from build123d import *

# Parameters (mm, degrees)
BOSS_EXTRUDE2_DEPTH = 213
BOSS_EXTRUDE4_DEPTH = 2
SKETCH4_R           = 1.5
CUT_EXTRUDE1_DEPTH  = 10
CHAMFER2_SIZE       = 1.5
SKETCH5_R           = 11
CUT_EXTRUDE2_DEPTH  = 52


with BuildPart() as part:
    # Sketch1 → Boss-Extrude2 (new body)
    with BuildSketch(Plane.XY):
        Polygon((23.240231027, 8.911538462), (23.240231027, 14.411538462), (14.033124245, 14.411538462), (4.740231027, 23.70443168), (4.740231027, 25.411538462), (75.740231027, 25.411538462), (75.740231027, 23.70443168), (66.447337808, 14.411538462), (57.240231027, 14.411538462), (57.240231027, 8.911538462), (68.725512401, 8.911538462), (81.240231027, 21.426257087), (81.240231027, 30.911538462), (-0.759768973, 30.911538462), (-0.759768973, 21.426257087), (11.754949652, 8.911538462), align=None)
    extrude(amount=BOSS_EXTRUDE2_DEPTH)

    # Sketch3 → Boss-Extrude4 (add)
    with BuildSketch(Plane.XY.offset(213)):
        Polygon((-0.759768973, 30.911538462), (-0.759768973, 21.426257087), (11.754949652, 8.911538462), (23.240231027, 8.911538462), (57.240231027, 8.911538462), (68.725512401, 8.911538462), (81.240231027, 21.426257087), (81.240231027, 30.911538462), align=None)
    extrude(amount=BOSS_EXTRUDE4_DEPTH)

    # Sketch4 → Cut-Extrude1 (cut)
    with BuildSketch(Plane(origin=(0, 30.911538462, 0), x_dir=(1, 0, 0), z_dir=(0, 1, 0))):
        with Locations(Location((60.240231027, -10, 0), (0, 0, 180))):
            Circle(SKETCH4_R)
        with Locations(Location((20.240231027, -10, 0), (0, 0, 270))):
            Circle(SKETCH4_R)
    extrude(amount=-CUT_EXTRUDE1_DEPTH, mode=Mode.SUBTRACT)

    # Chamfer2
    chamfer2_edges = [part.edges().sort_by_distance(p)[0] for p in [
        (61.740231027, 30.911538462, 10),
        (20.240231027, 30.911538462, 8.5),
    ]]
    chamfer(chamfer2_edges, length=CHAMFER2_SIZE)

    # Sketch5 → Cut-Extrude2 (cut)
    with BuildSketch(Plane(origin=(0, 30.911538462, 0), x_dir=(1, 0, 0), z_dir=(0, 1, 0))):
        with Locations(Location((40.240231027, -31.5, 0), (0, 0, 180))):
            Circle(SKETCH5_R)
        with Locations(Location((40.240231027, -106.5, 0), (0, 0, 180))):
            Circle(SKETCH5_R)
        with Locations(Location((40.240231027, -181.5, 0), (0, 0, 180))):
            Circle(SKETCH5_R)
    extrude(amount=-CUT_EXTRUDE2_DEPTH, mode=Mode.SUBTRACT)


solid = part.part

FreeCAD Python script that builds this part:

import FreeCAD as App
import Part
import Sketcher

V = App.Vector


def edges_at(feature, points):
    """Names of the edges that pass closest to the given points."""
    edges = feature.Shape.Edges
    near = lambda p: min(range(len(edges)), key=lambda i: edges[i].distToShape(Part.Vertex(*p))[0])
    return sorted({f"Edge{near(p) + 1}" for p in points})

doc = App.newDocument("Part")
body = doc.addObject("PartDesign::Body", "Body")

# Sketch on XY plane
sketch1 = body.newObject("Sketcher::SketchObject", "Sketch")
sketch1.AttachmentSupport = (doc.getObject("XY_Plane"), [""])
sketch1.MapMode = "FlatFace"
sketch1.addGeometry(Part.LineSegment(V(23.2, 8.9, 0), V(23.2, 14.4, 0)), False)
sketch1.addGeometry(Part.LineSegment(V(23.2, 14.4, 0), V(14, 14.4, 0)), False)
sketch1.addGeometry(Part.LineSegment(V(14, 14.4, 0), V(4.7, 23.7, 0)), False)
sketch1.addGeometry(Part.LineSegment(V(4.7, 23.7, 0), V(4.7, 25.4, 0)), False)
sketch1.addGeometry(Part.LineSegment(V(4.7, 25.4, 0), V(75.7, 25.4, 0)), False)
sketch1.addGeometry(Part.LineSegment(V(75.7, 25.4, 0), V(75.7, 23.7, 0)), False)
sketch1.addGeometry(Part.LineSegment(V(75.7, 23.7, 0), V(66.4, 14.4, 0)), False)
sketch1.addGeometry(Part.LineSegment(V(66.4, 14.4, 0), V(57.2, 14.4, 0)), False)
sketch1.addGeometry(Part.LineSegment(V(57.2, 14.4, 0), V(57.2, 8.9, 0)), False)
sketch1.addGeometry(Part.LineSegment(V(57.2, 8.9, 0), V(68.7, 8.9, 0)), False)
sketch1.addGeometry(Part.LineSegment(V(68.7, 8.9, 0), V(81.2, 21.4, 0)), False)
sketch1.addGeometry(Part.LineSegment(V(81.2, 21.4, 0), V(81.2, 30.9, 0)), False)
sketch1.addGeometry(Part.LineSegment(V(81.2, 30.9, 0), V(-0.8, 30.9, 0)), False)
sketch1.addGeometry(Part.LineSegment(V(-0.8, 30.9, 0), V(-0.8, 21.4, 0)), False)
sketch1.addGeometry(Part.LineSegment(V(-0.8, 21.4, 0), V(11.8, 8.9, 0)), False)
sketch1.addGeometry(Part.LineSegment(V(11.8, 8.9, 0), V(23.2, 8.9, 0)), False)
sketch1.addConstraint(Sketcher.Constraint("Coincident", 0, 2, 1, 1))
sketch1.addConstraint(Sketcher.Constraint("Coincident", 1, 2, 2, 1))
sketch1.addConstraint(Sketcher.Constraint("Coincident", 2, 2, 3, 1))
sketch1.addConstraint(Sketcher.Constraint("Coincident", 3, 2, 4, 1))
sketch1.addConstraint(Sketcher.Constraint("Coincident", 4, 2, 5, 1))
sketch1.addConstraint(Sketcher.Constraint("Coincident", 5, 2, 6, 1))
sketch1.addConstraint(Sketcher.Constraint("Coincident", 6, 2, 7, 1))
sketch1.addConstraint(Sketcher.Constraint("Coincident", 7, 2, 8, 1))
sketch1.addConstraint(Sketcher.Constraint("Coincident", 8, 2, 9, 1))
sketch1.addConstraint(Sketcher.Constraint("Coincident", 9, 2, 10, 1))
sketch1.addConstraint(Sketcher.Constraint("Coincident", 10, 2, 11, 1))
sketch1.addConstraint(Sketcher.Constraint("Coincident", 11, 2, 12, 1))
sketch1.addConstraint(Sketcher.Constraint("Coincident", 12, 2, 13, 1))
sketch1.addConstraint(Sketcher.Constraint("Coincident", 13, 2, 14, 1))
sketch1.addConstraint(Sketcher.Constraint("Coincident", 14, 2, 15, 1))
sketch1.addConstraint(Sketcher.Constraint("Coincident", 15, 2, 0, 1))
sketch1.addConstraint(Sketcher.Constraint("Vertical", 0))
sketch1.addConstraint(Sketcher.Constraint("Horizontal", 1))
sketch1.addConstraint(Sketcher.Constraint("Vertical", 3))
sketch1.addConstraint(Sketcher.Constraint("Horizontal", 4))
sketch1.addConstraint(Sketcher.Constraint("Vertical", 5))
sketch1.addConstraint(Sketcher.Constraint("Horizontal", 7))
sketch1.addConstraint(Sketcher.Constraint("Vertical", 8))
sketch1.addConstraint(Sketcher.Constraint("Horizontal", 9))
sketch1.addConstraint(Sketcher.Constraint("Vertical", 11))
sketch1.addConstraint(Sketcher.Constraint("Horizontal", 12))
sketch1.addConstraint(Sketcher.Constraint("Vertical", 13))
sketch1.addConstraint(Sketcher.Constraint("Horizontal", 15))
sketch1.addConstraint(Sketcher.Constraint("Perpendicular", 2, 6))
sketch1.addConstraint(Sketcher.Constraint("Parallel", 6, 10))
sketch1.addConstraint(Sketcher.Constraint("Perpendicular", 10, 14))
sketch1.addConstraint(Sketcher.Constraint("Horizontal", 2, 2, 5, 2))
sketch1.addConstraint(Sketcher.Constraint("Horizontal", 1, 2, 6, 2))
sketch1.addConstraint(Sketcher.Constraint("Horizontal", 10, 2, 13, 2))
sketch1.addConstraint(Sketcher.Constraint("Horizontal", 9, 2, 14, 2))
sketch1.addConstraint(Sketcher.Constraint("Equal", 1, 7))
sketch1.addConstraint(Sketcher.Constraint("Equal", 9, 15))
sketch1.addConstraint(Sketcher.Constraint("Equal", 2, 6))
sketch1.addConstraint(Sketcher.Constraint("DistanceX", 4, 1, 4, 2, 71.0))
sketch1.addConstraint(Sketcher.Constraint("DistanceX", 12, 2, 12, 1, 82.0))
sketch1.addConstraint(Sketcher.Constraint("DistanceY", 0, 1, 0, 2, 5.5))
sketch1.addConstraint(Sketcher.Constraint("DistanceY", 1, 2, 3, 2, 11.0))
sketch1.addConstraint(Sketcher.Constraint("DistanceX", 0, 2, 7, 2, 34.0))
sketch1.addConstraint(Sketcher.Constraint("DistanceY", 9, 2, 11, 2, 22.0))
sketch1.addConstraint(Sketcher.Constraint("DistanceX", 9, 1, 9, 2, 11.485281))
sketch1.addConstraint(Sketcher.Constraint("DistanceX", 1, 2, 1, 1, 9.207107))
sketch1.addConstraint(Sketcher.Constraint("DistanceX", -1, 1, 0, 2, 23.240231))
sketch1.addConstraint(Sketcher.Constraint("DistanceY", -1, 1, 0, 2, 14.411538))
pad1 = body.newObject("PartDesign::Pad", "Pad")
pad1.Profile = sketch1
pad1.Length = 213

# Sketch on XY plane
sketch2 = body.newObject("Sketcher::SketchObject", "Sketch001")
sketch2.AttachmentSupport = (doc.getObject("XY_Plane"), [""])
sketch2.MapMode = "FlatFace"
sketch2.AttachmentOffset = App.Placement(V(0, 0, 213), App.Rotation())
sketch2.addGeometry(Part.LineSegment(V(-1, 31, 0), V(-1, 21, 0)), False)
sketch2.addGeometry(Part.LineSegment(V(-1, 21, 0), V(12, 9, 0)), False)
sketch2.addGeometry(Part.LineSegment(V(12, 9, 0), V(69, 9, 0)), False)
sketch2.addGeometry(Part.LineSegment(V(69, 9, 0), V(81, 21, 0)), False)
sketch2.addGeometry(Part.LineSegment(V(81, 21, 0), V(81, 31, 0)), False)
sketch2.addGeometry(Part.LineSegment(V(81, 31, 0), V(-1, 31, 0)), False)
sketch2.addConstraint(Sketcher.Constraint("Coincident", 0, 2, 1, 1))
sketch2.addConstraint(Sketcher.Constraint("Coincident", 1, 2, 2, 1))
sketch2.addConstraint(Sketcher.Constraint("Coincident", 2, 2, 3, 1))
sketch2.addConstraint(Sketcher.Constraint("Coincident", 3, 2, 4, 1))
sketch2.addConstraint(Sketcher.Constraint("Coincident", 4, 2, 5, 1))
sketch2.addConstraint(Sketcher.Constraint("Coincident", 5, 2, 0, 1))
sketch2.addConstraint(Sketcher.Constraint("Vertical", 0))
sketch2.addConstraint(Sketcher.Constraint("Horizontal", 2))
sketch2.addConstraint(Sketcher.Constraint("Vertical", 4))
sketch2.addConstraint(Sketcher.Constraint("Horizontal", 5))
sketch2.addConstraint(Sketcher.Constraint("Perpendicular", 1, 3))
sketch2.addConstraint(Sketcher.Constraint("Horizontal", 0, 2, 3, 2))
sketch2.addConstraint(Sketcher.Constraint("Equal", 1, 3))
sketch2.addConstraint(Sketcher.Constraint("DistanceX", 5, 2, 5, 1, 82.0))
sketch2.addConstraint(Sketcher.Constraint("DistanceY", 2, 2, 4, 2, 22.0))
sketch2.addConstraint(Sketcher.Constraint("DistanceY", 0, 2, 0, 1, 9.485281))
sketch2.addConstraint(Sketcher.Constraint("DistanceX", 0, 2, -1, 1, 0.759769))
sketch2.addConstraint(Sketcher.Constraint("DistanceY", -1, 1, 1, 2, 8.911538))
pad2 = body.newObject("PartDesign::Pad", "Pad001")
pad2.Profile = sketch2
pad2.Length = 2

# Sketch on XZ plane
sketch3 = body.newObject("Sketcher::SketchObject", "Sketch002")
sketch3.AttachmentSupport = (doc.getObject("XZ_Plane"), [""])
sketch3.MapMode = "FlatFace"
sketch3.AttachmentOffset = App.Placement(V(0, 0, -30.911538), App.Rotation())
sketch3.addGeometry(Part.Circle(V(60.2, 10, 0), V(0, 0, 1), 1.5), False)
sketch3.addGeometry(Part.Circle(V(20.2, 10, 0), V(0, 0, 1), 1.5), False)
sketch3.addConstraint(Sketcher.Constraint("Equal", 0, 1))
sketch3.addConstraint(Sketcher.Constraint("Horizontal", 0, 3, 1, 3))
sketch3.addConstraint(Sketcher.Constraint("Diameter", 0, 3.0))
sketch3.addConstraint(Sketcher.Constraint("DistanceY", -1, 1, 0, 3, 10.0))
sketch3.addConstraint(Sketcher.Constraint("DistanceX", 1, 3, 0, 3, 40.0))
sketch3.addConstraint(Sketcher.Constraint("DistanceX", -1, 1, 0, 3, 60.240231))
pocket1 = body.newObject("PartDesign::Pocket", "Pocket")
pocket1.Profile = sketch3
pocket1.Length = 10
pocket1.Reversed = True
doc.recompute()

chamfer = body.newObject("PartDesign::Chamfer", "Chamfer")
chamfer.Base = (pocket1, edges_at(pocket1, [(61.74, 30.912, 10), (20.24, 30.912, 8.5)]))
chamfer.Size = 1.5

# Sketch on XZ plane
sketch4 = body.newObject("Sketcher::SketchObject", "Sketch003")
sketch4.AttachmentSupport = (doc.getObject("XZ_Plane"), [""])
sketch4.MapMode = "FlatFace"
sketch4.AttachmentOffset = App.Placement(V(0, 0, -30.911538), App.Rotation())
sketch4.addGeometry(Part.Circle(V(40, 32, 0), V(0, 0, 1), 11), False)
sketch4.addGeometry(Part.Circle(V(40, 106, 0), V(0, 0, 1), 11), False)
sketch4.addGeometry(Part.Circle(V(40, 182, 0), V(0, 0, 1), 11), False)
sketch4.addConstraint(Sketcher.Constraint("Equal", 0, 1))
sketch4.addConstraint(Sketcher.Constraint("Equal", 1, 2))
sketch4.addConstraint(Sketcher.Constraint("Vertical", 0, 3, 1, 3))
sketch4.addConstraint(Sketcher.Constraint("Vertical", 1, 3, 2, 3))
sketch4.addConstraint(Sketcher.Constraint("Diameter", 0, 22.0))
sketch4.addConstraint(Sketcher.Constraint("DistanceY", 0, 3, 1, 3, 75.0))
sketch4.addConstraint(Sketcher.Constraint("DistanceY", 1, 3, 2, 3, 75.0))
sketch4.addConstraint(Sketcher.Constraint("DistanceY", -1, 1, 0, 3, 31.5))
sketch4.addConstraint(Sketcher.Constraint("DistanceX", -1, 1, 0, 3, 40.240231))
pocket2 = body.newObject("PartDesign::Pocket", "Pocket001")
pocket2.Profile = sketch4
pocket2.Length = 52
pocket2.Reversed = True

doc.recompute()
